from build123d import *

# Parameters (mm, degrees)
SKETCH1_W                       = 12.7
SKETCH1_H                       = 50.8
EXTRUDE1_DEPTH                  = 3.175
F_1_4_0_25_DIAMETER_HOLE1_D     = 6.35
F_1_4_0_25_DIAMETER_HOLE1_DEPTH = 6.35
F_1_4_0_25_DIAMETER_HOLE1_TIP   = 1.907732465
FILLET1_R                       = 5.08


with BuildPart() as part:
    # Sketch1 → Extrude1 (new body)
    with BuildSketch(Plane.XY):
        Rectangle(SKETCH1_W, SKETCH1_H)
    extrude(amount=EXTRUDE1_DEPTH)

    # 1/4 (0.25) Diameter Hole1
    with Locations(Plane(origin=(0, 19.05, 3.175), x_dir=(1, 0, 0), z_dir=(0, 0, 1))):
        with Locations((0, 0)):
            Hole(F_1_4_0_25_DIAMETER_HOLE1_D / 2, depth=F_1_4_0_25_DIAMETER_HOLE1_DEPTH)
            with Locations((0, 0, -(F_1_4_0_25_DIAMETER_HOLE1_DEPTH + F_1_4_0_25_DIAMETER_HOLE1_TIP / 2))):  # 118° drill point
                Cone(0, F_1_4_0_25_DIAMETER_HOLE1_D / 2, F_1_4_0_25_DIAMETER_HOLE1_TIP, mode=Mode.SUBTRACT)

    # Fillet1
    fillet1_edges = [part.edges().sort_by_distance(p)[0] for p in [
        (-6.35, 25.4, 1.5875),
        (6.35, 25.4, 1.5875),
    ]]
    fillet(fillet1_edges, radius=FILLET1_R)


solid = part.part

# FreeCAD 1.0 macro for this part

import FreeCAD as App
import Part
import Sketcher
Q = App.Units.Quantity


def edges_at(feature, points):
    """Names of the edges that pass closest to the given points."""
    edges = feature.Shape.Edges
    near = lambda p: min(range(len(edges)), key=lambda i: edges[i].distToShape(Part.Vertex(*p))[0])
    return sorted({f"Edge{near(p) + 1}" for p in points})


def add_polygon(sketch, points):
    """Adds a closed chain of lines whose ends are joined by coincident constraints."""
    first, n = sketch.GeometryCount, len(points)
    for a, b in zip(points, points[1:] + points[:1]):
        sketch.addGeometry(Part.LineSegment(App.Vector(*a, 0), App.Vector(*b, 0)), False)
    for i in range(n):
        sketch.addConstraint(Sketcher.Constraint("Coincident", first + i, 2, first + (i + 1) % n, 1))

doc = App.newDocument("Part")
params = doc.addObject("Spreadsheet::Sheet", "Params")
for row, (alias, value) in enumerate([
    ("sketch1_height", "2 in"),
    ("sketch1_width", "0.5 in"),
    ("pad1_length", "0.125 in"),
    ("sketch2_diameter", "0.25 in"),
    ("hole_diameter", "0.25 in"),
    ("hole_depth", "0.25 in"),
    ("fillet_radius", "0.2 in"),
], start=1):
    params.set(f"A{row}", alias)
    params.set(f"B{row}", "=" + value)
    params.setAlias(f"B{row}", alias)

body = doc.addObject("PartDesign::Body", "Body")

sketch1 = body.newObject("Sketcher::SketchObject", "Sketch")
sketch1.AttachmentSupport = (doc.getObject("XY_Plane"), [""])
sketch1.MapMode = "FlatFace"
add_polygon(sketch1, [(-6, 25), (-6, -25), (6, -25), (6, 25)])
sketch1.addConstraint(Sketcher.Constraint("Vertical", 0))
sketch1.addConstraint(Sketcher.Constraint("Horizontal", 1))
sketch1.addConstraint(Sketcher.Constraint("Vertical", 2))
sketch1.addConstraint(Sketcher.Constraint("Horizontal", 3))
sketch1.addConstraint(Sketcher.Constraint("Symmetric", 0, 2, 2, 2, -1, 1))
sketch1.addConstraint(Sketcher.Constraint("DistanceY", 0, 2, 0, 1, Q("2 in")))
sketch1.addConstraint(Sketcher.Constraint("DistanceX", 1, 1, 1, 2, Q("0.5 in")))
sketch1.setExpression("Constraints[9]", "Params.sketch1_height")
sketch1.setExpression("Constraints[10]", "Params.sketch1_width")
pad1 = body.newObject("PartDesign::Pad", "Pad")
pad1.Profile = sketch1
pad1.setExpression("Length", "Params.pad1_length")

sketch2 = body.newObject("Sketcher::SketchObject", "Sketch001")
sketch2.AttachmentSupport = (doc.getObject("XY_Plane"), [""])
sketch2.MapMode = "FlatFace"
sketch2.AttachmentOffset = App.Placement(App.Vector(0, 0, 0.125 * 25.4), App.Rotation())
sketch2.addGeometry(Part.Circle(App.Vector(0, 19.1, 0), App.Vector(0, 0, 1), 3.2), False)
sketch2.addConstraint(Sketcher.Constraint("PointOnObject", 0, 3, -2))
sketch2.addConstraint(Sketcher.Constraint("Diameter", 0, Q("0.25 in")))
sketch2.addConstraint(Sketcher.Constraint("DistanceY", -1, 1, 0, 3, Q("0.75 in")))
sketch2.setExpression("Constraints[1]", "Params.sketch2_diameter")
doc.recompute()
hole = body.newObject("PartDesign::Hole", "Hole")
hole.Profile = sketch2
hole.ThreadType = "None"
hole.setExpression("Diameter", "Params.hole_diameter")
hole.DepthType = "Dimension"
hole.setExpression("Depth", "Params.hole_depth")
hole.DrillPoint = "Angled"
hole.DrillPointAngle = 118
doc.recompute()

fillet = body.newObject("PartDesign::Fillet", "Fillet")
fillet.Base = (hole, edges_at(hole, [(-6.35, 25.4, 1.587), (6.35, 25.4, 1.587)]))
fillet.setExpression("Radius", "Params.fillet_radius")

doc.recompute()
